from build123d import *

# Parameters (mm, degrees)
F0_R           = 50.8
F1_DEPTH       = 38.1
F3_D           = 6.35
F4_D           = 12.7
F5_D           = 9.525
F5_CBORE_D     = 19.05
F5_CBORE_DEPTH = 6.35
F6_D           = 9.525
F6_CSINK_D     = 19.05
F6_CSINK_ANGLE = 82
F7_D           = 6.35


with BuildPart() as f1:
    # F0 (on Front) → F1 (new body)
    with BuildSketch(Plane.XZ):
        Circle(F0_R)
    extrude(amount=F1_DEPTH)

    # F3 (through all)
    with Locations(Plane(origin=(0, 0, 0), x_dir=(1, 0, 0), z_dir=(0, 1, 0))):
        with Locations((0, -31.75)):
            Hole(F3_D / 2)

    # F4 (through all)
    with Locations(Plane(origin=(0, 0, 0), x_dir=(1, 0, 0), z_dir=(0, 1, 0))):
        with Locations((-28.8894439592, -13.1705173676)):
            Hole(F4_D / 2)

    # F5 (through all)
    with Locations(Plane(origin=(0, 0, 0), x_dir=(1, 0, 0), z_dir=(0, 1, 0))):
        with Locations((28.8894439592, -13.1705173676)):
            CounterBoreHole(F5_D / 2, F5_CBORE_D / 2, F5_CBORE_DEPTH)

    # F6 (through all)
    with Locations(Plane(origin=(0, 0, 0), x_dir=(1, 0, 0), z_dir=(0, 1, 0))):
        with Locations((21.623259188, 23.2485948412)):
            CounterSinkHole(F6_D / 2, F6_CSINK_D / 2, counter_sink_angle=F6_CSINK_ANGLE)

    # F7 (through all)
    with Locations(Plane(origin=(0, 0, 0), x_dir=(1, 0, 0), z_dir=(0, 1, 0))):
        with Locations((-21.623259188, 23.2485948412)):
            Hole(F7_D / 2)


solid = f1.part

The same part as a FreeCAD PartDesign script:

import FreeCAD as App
import Part
import Sketcher

V = App.Vector
Q = App.Units.Quantity

doc = App.newDocument("Part")
body = doc.addObject("PartDesign::Body", "Body")

sketch1 = doc.addObject("Sketcher::SketchObject", "Sketch")
body.addObject(sketch1)
sketch1.AttachmentSupport = (doc.XZ_Plane, [""])
sketch1.MapMode = "FlatFace"
sketch1.addGeometry(Part.Circle(V(0, 0, 0), V(0, 0, 1), 51), False)
sketch1.addConstraint(Sketcher.Constraint("Coincident", 0, 3, -1, 1))
sketch1.addConstraint(Sketcher.Constraint("Diameter", 0, Q("4 in")))
pad1 = doc.addObject("PartDesign::Pad", "Pad")
body.addObject(pad1)
pad1.Profile = sketch1
pad1.Length = Q("1.5 in")

sketch2 = doc.addObject("Sketcher::SketchObject", "Sketch001")
body.addObject(sketch2)
sketch2.AttachmentSupport = (doc.XZ_Plane, [""])
sketch2.MapMode = "FlatFace"
sketch2.addGeometry(Part.Circle(V(0, 31.8, 0), V(0, 0, 1), 3.2), False)
sketch2.addConstraint(Sketcher.Constraint("PointOnObject", 0, 3, -2))
sketch2.addConstraint(Sketcher.Constraint("Diameter", 0, Q("0.25 in")))
sketch2.addConstraint(Sketcher.Constraint("DistanceY", -1, 1, 0, 3, Q("1.25 in")))
doc.recompute()
hole = doc.addObject("PartDesign::Hole", "Hole")
body.addObject(hole)
hole.Profile = sketch2
hole.ThreadType = "None"
hole.Diameter = Q("0.25 in")
hole.DepthType = "ThroughAll"
hole.Reversed = True

sketch3 = doc.addObject("Sketcher::SketchObject", "Sketch002")
body.addObject(sketch3)
sketch3.AttachmentSupport = (doc.XZ_Plane, [""])
sketch3.MapMode = "FlatFace"
sketch3.addGeometry(Part.Circle(V(-29, 13, 0), V(0, 0, 1), 6), False)
sketch3.addConstraint(Sketcher.Constraint("Diameter", 0, Q("0.5 in")))
sketch3.addConstraint(Sketcher.Constraint("DistanceX", 0, 3, -1, 1, 28.889444))
sketch3.addConstraint(Sketcher.Constraint("DistanceY", -1, 1, 0, 3, 13.170517))
doc.recompute()
hole2 = doc.addObject("PartDesign::Hole", "Hole001")
body.addObject(hole2)
hole2.Profile = sketch3
hole2.ThreadType = "None"
hole2.Diameter = Q("0.5 in")
hole2.DepthType = "ThroughAll"
hole2.Reversed = True

sketch4 = doc.addObject("Sketcher::SketchObject", "Sketch003")
body.addObject(sketch4)
sketch4.AttachmentSupport = (doc.XZ_Plane, [""])
sketch4.MapMode = "FlatFace"
sketch4.addGeometry(Part.Circle(V(28.9, 13.2, 0), V(0, 0, 1), 4.8), False)
sketch4.addConstraint(Sketcher.Constraint("Diameter", 0, Q("0.375 in")))
sketch4.addConstraint(Sketcher.Constraint("DistanceX", -1, 1, 0, 3, 28.889444))
sketch4.addConstraint(Sketcher.Constraint("DistanceY", -1, 1, 0, 3, 13.170517))
doc.recompute()
hole3 = doc.addObject("PartDesign::Hole", "Hole002")
body.addObject(hole3)
hole3.Profile = sketch4
hole3.ThreadType = "None"
hole3.Diameter = Q("0.375 in")
hole3.DepthType = "ThroughAll"
hole3.HoleCutType = "Counterbore"
hole3.HoleCutDiameter = Q("0.75 in")
hole3.HoleCutDepth = Q("0.25 in")
hole3.Reversed = True

sketch5 = doc.addObject("Sketcher::SketchObject", "Sketch004")
body.addObject(sketch5)
sketch5.AttachmentSupport = (doc.XZ_Plane, [""])
sketch5.MapMode = "FlatFace"
sketch5.addGeometry(Part.Circle(V(21.6, -23.2, 0), V(0, 0, 1), 4.8), False)
sketch5.addConstraint(Sketcher.Constraint("Diameter", 0, Q("0.375 in")))
sketch5.addConstraint(Sketcher.Constraint("DistanceX", -1, 1, 0, 3, 21.623259))
sketch5.addConstraint(Sketcher.Constraint("DistanceY", 0, 3, -1, 1, 23.248595))
doc.recompute()
hole4 = doc.addObject("PartDesign::Hole", "Hole003")
body.addObject(hole4)
hole4.Profile = sketch5
hole4.ThreadType = "None"
hole4.Diameter = Q("0.375 in")
hole4.DepthType = "ThroughAll"
hole4.HoleCutType = "Countersink"
hole4.HoleCutDiameter = Q("0.75 in")
hole4.HoleCutCountersinkAngle = 82
hole4.Reversed = True

sketch6 = doc.addObject("Sketcher::SketchObject", "Sketch005")
body.addObject(sketch6)
sketch6.AttachmentSupport = (doc.XZ_Plane, [""])
sketch6.MapMode = "FlatFace"
sketch6.addGeometry(Part.Circle(V(-21.6, -23.2, 0), V(0, 0, 1), 3.2), False)
sketch6.addConstraint(Sketcher.Constraint("Diameter", 0, Q("0.25 in")))
sketch6.addConstraint(Sketcher.Constraint("DistanceX", 0, 3, -1, 1, 21.623259))
sketch6.addConstraint(Sketcher.Constraint("DistanceY", 0, 3, -1, 1, 23.248595))
doc.recompute()
hole5 = doc.addObject("PartDesign::Hole", "Hole004")
body.addObject(hole5)
hole5.Profile = sketch6
hole5.ThreadType = "None"
hole5.Diameter = Q("0.25 in")
hole5.DepthType = "ThroughAll"
hole5.Reversed = True

doc.recompute()
